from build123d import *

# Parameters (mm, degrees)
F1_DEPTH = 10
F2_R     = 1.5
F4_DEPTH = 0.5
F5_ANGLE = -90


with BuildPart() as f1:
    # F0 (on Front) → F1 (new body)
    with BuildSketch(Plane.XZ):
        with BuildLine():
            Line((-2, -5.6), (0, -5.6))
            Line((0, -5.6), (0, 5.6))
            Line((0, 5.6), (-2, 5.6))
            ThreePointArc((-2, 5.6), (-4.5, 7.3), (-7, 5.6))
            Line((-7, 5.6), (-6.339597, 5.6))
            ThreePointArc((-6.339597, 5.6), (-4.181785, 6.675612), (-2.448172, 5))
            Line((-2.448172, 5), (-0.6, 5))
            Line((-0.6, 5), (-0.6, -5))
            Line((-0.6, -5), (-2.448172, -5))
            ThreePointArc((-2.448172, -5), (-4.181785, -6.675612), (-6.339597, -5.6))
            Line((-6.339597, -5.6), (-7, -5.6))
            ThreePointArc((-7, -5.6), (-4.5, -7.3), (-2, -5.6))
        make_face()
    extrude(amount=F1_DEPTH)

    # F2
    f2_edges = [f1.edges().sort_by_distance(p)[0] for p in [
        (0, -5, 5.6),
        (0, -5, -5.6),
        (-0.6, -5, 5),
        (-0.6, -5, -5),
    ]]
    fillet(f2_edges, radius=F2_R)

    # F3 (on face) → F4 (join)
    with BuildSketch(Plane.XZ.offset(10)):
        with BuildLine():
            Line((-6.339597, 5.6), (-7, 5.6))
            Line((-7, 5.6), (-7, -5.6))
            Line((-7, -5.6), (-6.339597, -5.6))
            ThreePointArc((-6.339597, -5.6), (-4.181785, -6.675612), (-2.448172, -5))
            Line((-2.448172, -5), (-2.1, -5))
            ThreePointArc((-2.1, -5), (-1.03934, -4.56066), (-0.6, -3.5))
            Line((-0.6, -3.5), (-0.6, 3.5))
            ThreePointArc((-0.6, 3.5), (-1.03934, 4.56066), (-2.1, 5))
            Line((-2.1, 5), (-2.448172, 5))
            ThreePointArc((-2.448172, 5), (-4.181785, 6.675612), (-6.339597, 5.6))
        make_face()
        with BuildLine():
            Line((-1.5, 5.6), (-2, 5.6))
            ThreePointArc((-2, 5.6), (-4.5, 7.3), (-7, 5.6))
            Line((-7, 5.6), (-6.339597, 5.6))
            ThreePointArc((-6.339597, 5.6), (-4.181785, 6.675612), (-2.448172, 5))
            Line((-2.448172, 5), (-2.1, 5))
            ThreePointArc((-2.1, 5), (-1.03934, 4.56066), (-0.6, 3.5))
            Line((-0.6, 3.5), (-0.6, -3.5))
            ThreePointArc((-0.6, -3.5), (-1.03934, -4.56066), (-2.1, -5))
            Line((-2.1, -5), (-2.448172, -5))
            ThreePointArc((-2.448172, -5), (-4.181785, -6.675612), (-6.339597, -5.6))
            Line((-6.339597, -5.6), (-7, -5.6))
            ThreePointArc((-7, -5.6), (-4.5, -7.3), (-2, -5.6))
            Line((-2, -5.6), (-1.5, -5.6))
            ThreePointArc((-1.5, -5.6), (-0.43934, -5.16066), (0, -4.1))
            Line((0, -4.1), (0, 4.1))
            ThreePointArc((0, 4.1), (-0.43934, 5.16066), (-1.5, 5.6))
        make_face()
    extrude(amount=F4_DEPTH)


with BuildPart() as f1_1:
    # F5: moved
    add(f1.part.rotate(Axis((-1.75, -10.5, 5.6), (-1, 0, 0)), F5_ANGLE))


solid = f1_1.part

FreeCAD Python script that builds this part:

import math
import FreeCAD as App
import Part
import Sketcher


def edges_at(feature, points):
    """Names of the edges that pass closest to the given points."""
    edges = feature.Shape.Edges
    near = lambda p: min(range(len(edges)), key=lambda i: edges[i].distToShape(Part.Vertex(*p))[0])
    return sorted({f"Edge{near(p) + 1}" for p in points})

doc = App.newDocument("Part")
body = doc.addObject("PartDesign::Body", "Body")

# Sketch on XZ plane
sketch1 = doc.addObject("Sketcher::SketchObject", "Sketch")
body.addObject(sketch1)
sketch1.AttachmentSupport = (doc.XZ_Plane, [""])
sketch1.MapMode = "FlatFace"
sketch1.addGeometry(Part.LineSegment(App.Vector(-2, -5.6, 0), App.Vector(0, -5.6, 0)), False)
sketch1.addGeometry(Part.LineSegment(App.Vector(0, -5.6, 0), App.Vector(0, 5.6, 0)), False)
sketch1.addGeometry(Part.LineSegment(App.Vector(0, 5.6, 0), App.Vector(-2, 5.6, 0)), False)
sketch1.addGeometry(Part.ArcOfCircle(Part.Circle(App.Vector(-4.5, 4.611765, 0), App.Vector(0, 0, 1), 2.688235), math.radians(21.568596), math.radians(158.431404)), False)
sketch1.addGeometry(Part.LineSegment(App.Vector(-7, 5.6, 0), App.Vector(-6.339597, 5.6, 0)), False)
sketch1.addGeometry(Part.ArcOfCircle(Part.Circle(App.Vector(-4.5, 4.611765, 0), App.Vector(0, 0, 1), 2.088235), math.radians(10.714504), math.radians(151.755224)), False)
sketch1.addGeometry(Part.LineSegment(App.Vector(-2.448172, 5, 0), App.Vector(-0.6, 5, 0)), False)
sketch1.addGeometry(Part.LineSegment(App.Vector(-0.6, 5, 0), App.Vector(-0.6, -5, 0)), False)
sketch1.addGeometry(Part.LineSegment(App.Vector(-0.6, -5, 0), App.Vector(-2.448172, -5, 0)), False)
sketch1.addGeometry(Part.ArcOfCircle(Part.Circle(App.Vector(-4.5, -4.611765, 0), App.Vector(0, 0, 1), 2.088235), math.radians(-151.755224), math.radians(-10.714504)), False)
sketch1.addGeometry(Part.LineSegment(App.Vector(-6.339597, -5.6, 0), App.Vector(-7, -5.6, 0)), False)
sketch1.addGeometry(Part.ArcOfCircle(Part.Circle(App.Vector(-4.5, -4.611765, 0), App.Vector(0, 0, 1), 2.688235), math.radians(-158.431404), math.radians(-21.568596)), False)
sketch1.addConstraint(Sketcher.Constraint("Coincident", 0, 2, 1, 1))
sketch1.addConstraint(Sketcher.Constraint("Coincident", 1, 2, 2, 1))
sketch1.addConstraint(Sketcher.Constraint("Coincident", 2, 2, 3, 1))
sketch1.addConstraint(Sketcher.Constraint("Coincident", 3, 2, 4, 1))
sketch1.addConstraint(Sketcher.Constraint("Coincident", 4, 2, 5, 2))
sketch1.addConstraint(Sketcher.Constraint("Coincident", 5, 1, 6, 1))
sketch1.addConstraint(Sketcher.Constraint("Coincident", 6, 2, 7, 1))
sketch1.addConstraint(Sketcher.Constraint("Coincident", 7, 2, 8, 1))
sketch1.addConstraint(Sketcher.Constraint("Coincident", 8, 2, 9, 2))
sketch1.addConstraint(Sketcher.Constraint("Coincident", 9, 1, 10, 1))
sketch1.addConstraint(Sketcher.Constraint("Coincident", 10, 2, 11, 1))
sketch1.addConstraint(Sketcher.Constraint("Coincident", 11, 2, 0, 1))
sketch1.addConstraint(Sketcher.Constraint("Horizontal", 0))
sketch1.addConstraint(Sketcher.Constraint("Vertical", 1))
sketch1.addConstraint(Sketcher.Constraint("Horizontal", 2))
sketch1.addConstraint(Sketcher.Constraint("Horizontal", 4))
sketch1.addConstraint(Sketcher.Constraint("Horizontal", 6))
sketch1.addConstraint(Sketcher.Constraint("Vertical", 7))
sketch1.addConstraint(Sketcher.Constraint("Horizontal", 8))
sketch1.addConstraint(Sketcher.Constraint("Horizontal", 10))
sketch1.addConstraint(Sketcher.Constraint("Coincident", 5, 3, 3, 3))
sketch1.addConstraint(Sketcher.Constraint("Coincident", 11, 3, 9, 3))
sketch1.addConstraint(Sketcher.Constraint("Equal", 5, 9))
sketch1.addConstraint(Sketcher.Constraint("Equal", 3, 11))
sketch1.addConstraint(Sketcher.Constraint("Symmetric", 0, 2, 1, 2, -1, 1))
sketch1.addConstraint(Sketcher.Constraint("Symmetric", 3, 3, 9, 3, -1))
sketch1.addConstraint(Sketcher.Constraint("Horizontal", 2, 2, 3, 2))
sketch1.addConstraint(Sketcher.Constraint("Horizontal", 0, 2, 9, 1))
sketch1.addConstraint(Sketcher.Constraint("Vertical", 5, 1, 8, 2))
sketch1.addConstraint(Sketcher.Constraint("DistanceX", 0, 1, 0, 2, 2.0))
sketch1.addConstraint(Sketcher.Constraint("DistanceY", 7, 2, 7, 1, 10.0))
sketch1.addConstraint(Sketcher.Constraint("DistanceY", 1, 1, 1, 2, 11.2))
sketch1.addConstraint(Sketcher.Constraint("DistanceX", 3, 2, -1, 1, 7.0))
sketch1.addConstraint(Sketcher.Constraint("DistanceX", 6, 2, -1, 1, 0.6))
sketch1.addConstraint(Sketcher.Constraint("Radius", 3, 2.688235))
sketch1.addConstraint(Sketcher.Constraint("Radius", 5, 2.088235))
pad1 = doc.addObject("PartDesign::Pad", "Pad")
body.addObject(pad1)
pad1.Profile = sketch1
pad1.Length = 10
doc.recompute()

fillet = doc.addObject("PartDesign::Fillet", "Fillet")
body.addObject(fillet)
fillet.Base = (pad1, edges_at(pad1, [
    (0, -5, 5.6),
    (0, -5, -5.6),
    (-0.6, -5, 5),
    (-0.6, -5, -5),
]))
fillet.Radius = 1.5

# Sketch on XZ plane
sketch2 = doc.addObject("Sketcher::SketchObject", "Sketch001")
body.addObject(sketch2)
sketch2.AttachmentSupport = (doc.XZ_Plane, [""])
sketch2.MapMode = "FlatFace"
sketch2.AttachmentOffset = App.Placement(App.Vector(0, 0, 10), App.Rotation())
sketch2.addGeometry(Part.LineSegment(App.Vector(-7, 5.6, 0), App.Vector(-7, -5.6, 0)), False)
sketch2.addGeometry(Part.ArcOfCircle(Part.Circle(App.Vector(-4.5, -4.611765, 0), App.Vector(0, 0, 1), 2.688235), math.radians(-158.431404), math.radians(-21.568596)), False)
sketch2.addGeometry(Part.LineSegment(App.Vector(-2, -5.6, 0), App.Vector(-1.5, -5.6, 0)), False)
sketch2.addGeometry(Part.ArcOfCircle(Part.Circle(App.Vector(-1.500001, -4.099999, 0), App.Vector(0, 0, 1), 1.500001), math.radians(-89.999978), math.radians(-0.000022)), False)
sketch2.addGeometry(Part.LineSegment(App.Vector(0, -4.1, 0), App.Vector(0, 4.1, 0)), False)
sketch2.addGeometry(Part.ArcOfCircle(Part.Circle(App.Vector(-1.500001, 4.099999, 0), App.Vector(0, 0, 1), 1.500001), math.radians(0.000022), math.radians(89.999978)), False)
sketch2.addGeometry(Part.LineSegment(App.Vector(-1.5, 5.6, 0), App.Vector(-2, 5.6, 0)), False)
sketch2.addGeometry(Part.ArcOfCircle(Part.Circle(App.Vector(-4.5, 4.611765, 0), App.Vector(0, 0, 1), 2.688235), math.radians(21.568596), math.radians(158.431404)), False)
sketch2.addConstraint(Sketcher.Constraint("Coincident", 0, 2, 1, 1))
sketch2.addConstraint(Sketcher.Constraint("Coincident", 1, 2, 2, 1))
sketch2.addConstraint(Sketcher.Constraint("Tangent", 2, 2, 3, 1))
sketch2.addConstraint(Sketcher.Constraint("Tangent", 3, 2, 4, 1))
sketch2.addConstraint(Sketcher.Constraint("Tangent", 4, 2, 5, 1))
sketch2.addConstraint(Sketcher.Constraint("Tangent", 5, 2, 6, 1))
sketch2.addConstraint(Sketcher.Constraint("Coincident", 6, 2, 7, 1))
sketch2.addConstraint(Sketcher.Constraint("Coincident", 7, 2, 0, 1))
sketch2.addConstraint(Sketcher.Constraint("Vertical", 0))
sketch2.addConstraint(Sketcher.Constraint("Horizontal", 2))
sketch2.addConstraint(Sketcher.Constraint("Vertical", 4))
sketch2.addConstraint(Sketcher.Constraint("Horizontal", 6))
sketch2.addConstraint(Sketcher.Constraint("Equal", 3, 5))
sketch2.addConstraint(Sketcher.Constraint("Equal", 1, 7))
sketch2.addConstraint(Sketcher.Constraint("Symmetric", 3, 2, 4, 2, -1, 1))
sketch2.addConstraint(Sketcher.Constraint("Symmetric", 1, 3, 7, 3, -1))
sketch2.addConstraint(Sketcher.Constraint("Horizontal", 0, 2, 1, 2))
sketch2.addConstraint(Sketcher.Constraint("Radius", 3, 1.500001))
sketch2.addConstraint(Sketcher.Constraint("DistanceX", 2, 1, 2, 2, 0.5))
sketch2.addConstraint(Sketcher.Constraint("DistanceY", 0, 2, 0, 1, 11.2))
sketch2.addConstraint(Sketcher.Constraint("DistanceX", 0, 2, -1, 1, 7.0))
sketch2.addConstraint(Sketcher.Constraint("Radius", 1, 2.688235))
pad2 = doc.addObject("PartDesign::Pad", "Pad001")
body.addObject(pad2)
pad2.Profile = sketch2
pad2.Length = 0.5
body2 = doc.addObject("PartDesign::Body", "Body001")
doc.recompute()

body.Placement = App.Placement(App.Vector(0, -4.9, 16.1), App.Rotation(App.Vector(-1, 0, 0), 270))
boolean = doc.addObject("PartDesign::Boolean", "Boolean")
body2.addObject(boolean)
boolean.Type = "Fuse"
boolean.addObjects([body])

doc.recompute()
